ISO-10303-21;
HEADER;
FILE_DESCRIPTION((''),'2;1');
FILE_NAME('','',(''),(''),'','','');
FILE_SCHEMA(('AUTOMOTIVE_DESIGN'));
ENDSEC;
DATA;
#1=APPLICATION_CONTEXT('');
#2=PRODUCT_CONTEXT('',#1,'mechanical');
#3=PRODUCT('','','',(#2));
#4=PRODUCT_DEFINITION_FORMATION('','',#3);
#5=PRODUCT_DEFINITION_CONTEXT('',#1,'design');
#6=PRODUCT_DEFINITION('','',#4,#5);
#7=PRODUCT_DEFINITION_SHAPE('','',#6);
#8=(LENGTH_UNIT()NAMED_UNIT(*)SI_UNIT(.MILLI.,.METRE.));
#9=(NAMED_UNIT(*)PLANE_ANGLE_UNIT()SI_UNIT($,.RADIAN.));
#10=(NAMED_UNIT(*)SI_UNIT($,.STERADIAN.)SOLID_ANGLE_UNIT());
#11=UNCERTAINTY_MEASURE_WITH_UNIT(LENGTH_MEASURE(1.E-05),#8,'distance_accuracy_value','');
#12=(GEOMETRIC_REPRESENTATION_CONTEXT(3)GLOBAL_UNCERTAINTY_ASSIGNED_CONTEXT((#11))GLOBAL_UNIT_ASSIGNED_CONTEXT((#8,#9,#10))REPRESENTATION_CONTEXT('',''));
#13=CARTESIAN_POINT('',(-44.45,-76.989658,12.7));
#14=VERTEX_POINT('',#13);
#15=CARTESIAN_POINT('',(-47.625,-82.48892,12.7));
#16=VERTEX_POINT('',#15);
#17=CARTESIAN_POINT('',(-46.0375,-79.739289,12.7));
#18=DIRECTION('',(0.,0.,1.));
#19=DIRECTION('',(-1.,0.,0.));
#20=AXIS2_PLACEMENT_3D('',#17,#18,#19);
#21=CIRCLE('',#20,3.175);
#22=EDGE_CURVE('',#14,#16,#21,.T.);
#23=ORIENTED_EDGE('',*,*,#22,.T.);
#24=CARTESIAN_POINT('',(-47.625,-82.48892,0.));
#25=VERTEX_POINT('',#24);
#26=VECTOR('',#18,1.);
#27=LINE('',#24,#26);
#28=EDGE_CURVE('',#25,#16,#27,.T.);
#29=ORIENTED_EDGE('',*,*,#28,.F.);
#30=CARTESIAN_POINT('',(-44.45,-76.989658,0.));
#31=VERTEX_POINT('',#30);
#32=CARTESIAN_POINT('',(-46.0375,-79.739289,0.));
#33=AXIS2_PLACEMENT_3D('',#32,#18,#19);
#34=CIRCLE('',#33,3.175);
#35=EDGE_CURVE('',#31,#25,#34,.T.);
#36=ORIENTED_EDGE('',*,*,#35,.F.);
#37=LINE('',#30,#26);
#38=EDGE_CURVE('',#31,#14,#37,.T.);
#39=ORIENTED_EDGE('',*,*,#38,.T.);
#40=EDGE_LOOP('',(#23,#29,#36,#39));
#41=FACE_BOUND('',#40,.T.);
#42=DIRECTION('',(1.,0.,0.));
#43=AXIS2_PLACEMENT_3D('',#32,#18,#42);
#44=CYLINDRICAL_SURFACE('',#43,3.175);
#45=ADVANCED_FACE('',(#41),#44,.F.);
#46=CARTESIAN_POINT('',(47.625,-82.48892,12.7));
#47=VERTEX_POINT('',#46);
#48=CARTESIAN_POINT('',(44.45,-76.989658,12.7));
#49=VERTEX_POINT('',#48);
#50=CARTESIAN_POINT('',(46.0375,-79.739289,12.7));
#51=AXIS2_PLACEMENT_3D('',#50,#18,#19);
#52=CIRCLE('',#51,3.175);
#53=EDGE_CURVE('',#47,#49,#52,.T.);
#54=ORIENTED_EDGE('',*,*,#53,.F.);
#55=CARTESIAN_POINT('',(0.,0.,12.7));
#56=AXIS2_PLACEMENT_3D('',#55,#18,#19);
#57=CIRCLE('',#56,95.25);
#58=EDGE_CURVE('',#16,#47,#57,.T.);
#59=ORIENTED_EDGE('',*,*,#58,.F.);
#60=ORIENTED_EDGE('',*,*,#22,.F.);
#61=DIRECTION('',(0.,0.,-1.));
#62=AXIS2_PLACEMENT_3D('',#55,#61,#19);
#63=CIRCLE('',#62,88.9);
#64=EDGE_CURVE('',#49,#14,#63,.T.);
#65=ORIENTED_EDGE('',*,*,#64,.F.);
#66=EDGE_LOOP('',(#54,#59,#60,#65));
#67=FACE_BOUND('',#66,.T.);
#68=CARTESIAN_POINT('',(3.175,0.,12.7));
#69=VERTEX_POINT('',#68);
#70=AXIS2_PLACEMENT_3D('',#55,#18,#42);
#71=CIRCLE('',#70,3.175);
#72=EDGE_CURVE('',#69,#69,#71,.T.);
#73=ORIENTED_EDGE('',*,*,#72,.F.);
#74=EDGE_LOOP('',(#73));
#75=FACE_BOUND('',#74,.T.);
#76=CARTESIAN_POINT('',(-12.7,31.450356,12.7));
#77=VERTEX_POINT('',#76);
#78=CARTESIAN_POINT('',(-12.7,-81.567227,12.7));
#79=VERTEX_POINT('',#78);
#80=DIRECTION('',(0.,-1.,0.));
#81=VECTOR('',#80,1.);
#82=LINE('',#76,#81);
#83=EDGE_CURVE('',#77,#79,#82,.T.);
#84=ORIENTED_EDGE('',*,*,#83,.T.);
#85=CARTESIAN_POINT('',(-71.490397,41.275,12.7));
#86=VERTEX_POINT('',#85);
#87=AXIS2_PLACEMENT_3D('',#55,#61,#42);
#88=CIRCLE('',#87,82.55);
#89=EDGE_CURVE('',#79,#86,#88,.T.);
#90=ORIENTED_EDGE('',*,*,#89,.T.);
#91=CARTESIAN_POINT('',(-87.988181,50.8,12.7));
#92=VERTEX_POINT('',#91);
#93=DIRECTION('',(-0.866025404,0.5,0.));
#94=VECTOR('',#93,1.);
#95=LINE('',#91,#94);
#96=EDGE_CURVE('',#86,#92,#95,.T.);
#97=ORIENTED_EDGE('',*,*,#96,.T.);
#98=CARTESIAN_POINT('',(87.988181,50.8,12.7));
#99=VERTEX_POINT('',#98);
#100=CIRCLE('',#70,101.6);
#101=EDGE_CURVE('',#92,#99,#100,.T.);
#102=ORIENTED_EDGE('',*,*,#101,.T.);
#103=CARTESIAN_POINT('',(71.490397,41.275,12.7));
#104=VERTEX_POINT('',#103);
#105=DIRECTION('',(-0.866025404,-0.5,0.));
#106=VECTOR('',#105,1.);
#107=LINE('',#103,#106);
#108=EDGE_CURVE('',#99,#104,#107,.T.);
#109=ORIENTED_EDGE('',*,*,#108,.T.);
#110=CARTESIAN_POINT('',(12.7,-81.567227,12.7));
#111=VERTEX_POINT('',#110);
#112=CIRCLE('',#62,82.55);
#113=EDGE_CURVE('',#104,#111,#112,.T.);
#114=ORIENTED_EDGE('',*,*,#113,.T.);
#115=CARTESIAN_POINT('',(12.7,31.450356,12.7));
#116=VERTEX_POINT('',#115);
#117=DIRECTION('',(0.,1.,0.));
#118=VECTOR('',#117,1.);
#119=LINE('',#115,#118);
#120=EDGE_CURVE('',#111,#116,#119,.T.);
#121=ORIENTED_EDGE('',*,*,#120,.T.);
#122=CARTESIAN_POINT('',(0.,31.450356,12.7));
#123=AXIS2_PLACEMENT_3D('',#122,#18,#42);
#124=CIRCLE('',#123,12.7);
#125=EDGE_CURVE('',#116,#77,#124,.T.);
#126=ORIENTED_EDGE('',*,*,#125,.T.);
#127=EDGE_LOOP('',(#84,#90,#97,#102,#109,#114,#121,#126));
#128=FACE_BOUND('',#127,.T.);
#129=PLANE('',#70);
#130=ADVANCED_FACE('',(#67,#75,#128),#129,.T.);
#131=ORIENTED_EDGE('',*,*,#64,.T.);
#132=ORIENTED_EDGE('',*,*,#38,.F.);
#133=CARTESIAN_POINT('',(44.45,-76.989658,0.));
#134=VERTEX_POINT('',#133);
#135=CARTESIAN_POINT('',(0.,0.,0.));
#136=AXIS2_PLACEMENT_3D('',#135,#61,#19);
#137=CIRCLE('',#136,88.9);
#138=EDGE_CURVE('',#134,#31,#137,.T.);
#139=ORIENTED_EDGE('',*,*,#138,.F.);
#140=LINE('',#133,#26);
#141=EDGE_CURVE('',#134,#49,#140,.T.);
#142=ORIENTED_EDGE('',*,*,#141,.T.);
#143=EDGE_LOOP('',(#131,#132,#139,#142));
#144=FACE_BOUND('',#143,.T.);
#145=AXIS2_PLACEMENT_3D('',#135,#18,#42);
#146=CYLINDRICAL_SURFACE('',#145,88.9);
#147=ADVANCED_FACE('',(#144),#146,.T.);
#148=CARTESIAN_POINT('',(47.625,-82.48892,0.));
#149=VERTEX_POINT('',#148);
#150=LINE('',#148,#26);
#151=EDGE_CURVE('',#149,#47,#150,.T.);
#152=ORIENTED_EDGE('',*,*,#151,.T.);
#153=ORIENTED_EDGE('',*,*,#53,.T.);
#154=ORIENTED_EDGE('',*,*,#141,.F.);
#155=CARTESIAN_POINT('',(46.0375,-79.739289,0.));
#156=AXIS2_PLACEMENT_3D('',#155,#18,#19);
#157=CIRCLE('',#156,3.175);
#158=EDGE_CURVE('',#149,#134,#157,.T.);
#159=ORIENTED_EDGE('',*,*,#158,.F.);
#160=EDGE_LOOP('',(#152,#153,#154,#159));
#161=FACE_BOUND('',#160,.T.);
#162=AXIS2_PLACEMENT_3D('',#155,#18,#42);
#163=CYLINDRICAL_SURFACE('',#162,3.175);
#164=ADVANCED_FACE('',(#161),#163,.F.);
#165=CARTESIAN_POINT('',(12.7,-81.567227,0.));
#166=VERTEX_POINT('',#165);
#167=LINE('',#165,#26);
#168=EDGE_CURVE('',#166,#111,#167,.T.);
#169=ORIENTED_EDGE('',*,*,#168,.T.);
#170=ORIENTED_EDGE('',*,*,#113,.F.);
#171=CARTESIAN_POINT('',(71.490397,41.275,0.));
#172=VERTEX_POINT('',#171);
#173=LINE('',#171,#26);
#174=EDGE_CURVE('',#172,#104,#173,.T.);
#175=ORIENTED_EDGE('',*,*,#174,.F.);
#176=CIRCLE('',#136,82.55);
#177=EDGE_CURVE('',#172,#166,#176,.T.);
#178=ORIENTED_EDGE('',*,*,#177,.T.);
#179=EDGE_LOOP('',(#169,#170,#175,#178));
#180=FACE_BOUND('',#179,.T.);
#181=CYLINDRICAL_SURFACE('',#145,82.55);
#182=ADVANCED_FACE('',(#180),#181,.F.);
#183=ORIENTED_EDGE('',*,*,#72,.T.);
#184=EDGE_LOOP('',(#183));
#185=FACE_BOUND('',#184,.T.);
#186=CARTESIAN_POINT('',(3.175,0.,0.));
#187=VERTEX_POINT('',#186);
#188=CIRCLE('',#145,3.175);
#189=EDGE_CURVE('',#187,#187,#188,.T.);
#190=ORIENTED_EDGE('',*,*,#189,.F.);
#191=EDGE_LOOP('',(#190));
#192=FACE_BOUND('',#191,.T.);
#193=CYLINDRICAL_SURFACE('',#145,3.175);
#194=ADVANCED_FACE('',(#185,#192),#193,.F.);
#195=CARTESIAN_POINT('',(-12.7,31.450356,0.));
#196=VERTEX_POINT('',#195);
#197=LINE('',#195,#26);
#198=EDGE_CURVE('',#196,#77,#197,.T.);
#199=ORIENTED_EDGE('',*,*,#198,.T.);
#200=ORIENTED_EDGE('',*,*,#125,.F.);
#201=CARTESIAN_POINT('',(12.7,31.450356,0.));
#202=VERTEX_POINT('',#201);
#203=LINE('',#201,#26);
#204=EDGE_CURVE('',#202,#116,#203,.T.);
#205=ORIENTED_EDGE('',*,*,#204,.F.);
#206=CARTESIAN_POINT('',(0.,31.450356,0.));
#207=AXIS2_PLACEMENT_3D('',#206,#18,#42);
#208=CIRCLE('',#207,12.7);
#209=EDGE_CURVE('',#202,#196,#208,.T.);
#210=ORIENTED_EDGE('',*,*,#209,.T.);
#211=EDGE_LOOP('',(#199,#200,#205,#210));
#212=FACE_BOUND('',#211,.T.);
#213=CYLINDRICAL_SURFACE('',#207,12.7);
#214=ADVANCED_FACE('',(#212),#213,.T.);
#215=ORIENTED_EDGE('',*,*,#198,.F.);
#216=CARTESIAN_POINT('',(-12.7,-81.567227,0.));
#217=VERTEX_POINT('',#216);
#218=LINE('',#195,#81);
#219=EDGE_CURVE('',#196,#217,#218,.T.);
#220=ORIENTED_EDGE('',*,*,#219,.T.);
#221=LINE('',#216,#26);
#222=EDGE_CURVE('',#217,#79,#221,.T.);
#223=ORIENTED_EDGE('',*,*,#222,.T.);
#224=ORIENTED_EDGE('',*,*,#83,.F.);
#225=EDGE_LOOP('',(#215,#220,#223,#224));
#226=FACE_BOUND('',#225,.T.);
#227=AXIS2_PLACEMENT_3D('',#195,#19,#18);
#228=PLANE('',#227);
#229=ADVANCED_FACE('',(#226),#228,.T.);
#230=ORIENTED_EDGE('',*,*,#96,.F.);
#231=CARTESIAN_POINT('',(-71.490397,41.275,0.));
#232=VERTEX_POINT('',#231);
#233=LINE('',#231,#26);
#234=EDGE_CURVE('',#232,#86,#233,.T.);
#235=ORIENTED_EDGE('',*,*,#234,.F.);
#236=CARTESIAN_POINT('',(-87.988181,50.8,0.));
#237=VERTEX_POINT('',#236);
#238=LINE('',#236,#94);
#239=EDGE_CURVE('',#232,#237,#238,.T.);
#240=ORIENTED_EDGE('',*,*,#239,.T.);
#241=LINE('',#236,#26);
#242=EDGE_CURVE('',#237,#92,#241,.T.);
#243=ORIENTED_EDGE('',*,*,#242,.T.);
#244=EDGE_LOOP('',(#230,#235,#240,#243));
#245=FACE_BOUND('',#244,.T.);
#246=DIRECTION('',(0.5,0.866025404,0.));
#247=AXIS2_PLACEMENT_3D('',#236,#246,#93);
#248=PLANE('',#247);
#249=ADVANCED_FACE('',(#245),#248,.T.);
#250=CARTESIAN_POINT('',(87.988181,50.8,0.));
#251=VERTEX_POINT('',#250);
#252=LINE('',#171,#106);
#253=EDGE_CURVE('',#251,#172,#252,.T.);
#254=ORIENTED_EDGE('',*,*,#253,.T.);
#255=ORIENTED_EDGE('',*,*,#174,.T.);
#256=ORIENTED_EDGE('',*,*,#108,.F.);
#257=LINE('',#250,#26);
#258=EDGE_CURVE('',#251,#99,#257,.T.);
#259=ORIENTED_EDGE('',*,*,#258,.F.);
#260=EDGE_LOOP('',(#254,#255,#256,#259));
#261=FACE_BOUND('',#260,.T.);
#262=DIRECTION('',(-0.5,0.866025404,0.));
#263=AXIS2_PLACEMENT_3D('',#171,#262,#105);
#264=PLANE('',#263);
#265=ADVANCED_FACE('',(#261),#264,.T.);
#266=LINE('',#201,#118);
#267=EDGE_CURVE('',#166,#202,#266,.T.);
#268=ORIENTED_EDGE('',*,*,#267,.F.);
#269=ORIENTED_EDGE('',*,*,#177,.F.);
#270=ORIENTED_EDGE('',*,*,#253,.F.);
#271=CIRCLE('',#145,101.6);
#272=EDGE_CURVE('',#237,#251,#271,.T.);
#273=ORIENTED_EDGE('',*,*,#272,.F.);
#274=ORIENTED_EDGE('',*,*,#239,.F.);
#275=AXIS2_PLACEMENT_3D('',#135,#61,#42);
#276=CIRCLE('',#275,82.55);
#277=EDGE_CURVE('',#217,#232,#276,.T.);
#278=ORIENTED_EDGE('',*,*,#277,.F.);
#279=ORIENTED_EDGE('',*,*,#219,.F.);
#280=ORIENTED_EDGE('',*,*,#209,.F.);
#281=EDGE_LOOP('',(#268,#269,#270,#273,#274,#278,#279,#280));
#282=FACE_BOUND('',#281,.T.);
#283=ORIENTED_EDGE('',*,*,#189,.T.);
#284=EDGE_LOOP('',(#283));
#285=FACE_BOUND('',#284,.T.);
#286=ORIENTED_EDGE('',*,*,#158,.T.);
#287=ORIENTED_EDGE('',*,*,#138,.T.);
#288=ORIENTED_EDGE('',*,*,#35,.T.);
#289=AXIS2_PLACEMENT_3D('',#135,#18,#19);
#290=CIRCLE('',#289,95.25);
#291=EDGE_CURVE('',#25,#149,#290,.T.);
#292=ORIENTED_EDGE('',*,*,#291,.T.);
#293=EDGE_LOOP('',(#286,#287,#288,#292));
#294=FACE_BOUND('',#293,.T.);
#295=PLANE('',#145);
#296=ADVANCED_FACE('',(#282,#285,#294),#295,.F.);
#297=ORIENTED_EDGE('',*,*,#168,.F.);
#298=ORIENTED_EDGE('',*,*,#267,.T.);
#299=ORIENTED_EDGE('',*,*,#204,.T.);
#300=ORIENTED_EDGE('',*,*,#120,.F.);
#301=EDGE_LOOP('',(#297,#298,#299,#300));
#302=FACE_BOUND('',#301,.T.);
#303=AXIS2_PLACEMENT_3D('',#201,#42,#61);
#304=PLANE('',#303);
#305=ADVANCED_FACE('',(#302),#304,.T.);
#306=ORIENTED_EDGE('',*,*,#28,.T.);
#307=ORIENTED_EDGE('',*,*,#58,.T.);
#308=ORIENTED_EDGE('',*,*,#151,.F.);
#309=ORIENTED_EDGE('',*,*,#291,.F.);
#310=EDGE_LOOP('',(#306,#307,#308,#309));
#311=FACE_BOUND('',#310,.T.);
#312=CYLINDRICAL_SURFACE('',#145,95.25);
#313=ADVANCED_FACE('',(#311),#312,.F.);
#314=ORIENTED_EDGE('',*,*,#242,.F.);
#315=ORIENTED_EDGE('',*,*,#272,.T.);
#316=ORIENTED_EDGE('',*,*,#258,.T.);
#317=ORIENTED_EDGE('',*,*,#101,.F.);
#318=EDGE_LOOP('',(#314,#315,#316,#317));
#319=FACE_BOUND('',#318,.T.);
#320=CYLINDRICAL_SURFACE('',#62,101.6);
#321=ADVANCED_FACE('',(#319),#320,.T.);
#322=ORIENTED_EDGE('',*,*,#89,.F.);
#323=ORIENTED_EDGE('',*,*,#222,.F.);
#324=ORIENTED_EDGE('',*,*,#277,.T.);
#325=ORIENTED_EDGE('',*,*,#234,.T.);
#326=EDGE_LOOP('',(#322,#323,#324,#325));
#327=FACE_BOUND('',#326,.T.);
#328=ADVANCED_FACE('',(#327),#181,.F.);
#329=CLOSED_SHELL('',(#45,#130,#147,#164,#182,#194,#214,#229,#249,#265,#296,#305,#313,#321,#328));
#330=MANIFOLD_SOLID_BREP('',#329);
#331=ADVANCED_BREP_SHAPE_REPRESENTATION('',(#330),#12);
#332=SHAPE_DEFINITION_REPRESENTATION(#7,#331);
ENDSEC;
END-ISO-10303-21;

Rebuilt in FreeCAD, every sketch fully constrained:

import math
import FreeCAD as App
import Part
import Sketcher
Q = App.Units.Quantity

doc = App.newDocument("Part")
body = doc.addObject("PartDesign::Body", "Body")

sketch1 = doc.addObject("Sketcher::SketchObject", "Sketch")
body.addObject(sketch1)
sketch1.AttachmentSupport = (doc.XY_Plane, [""])
sketch1.MapMode = "FlatFace"
sketch1.addGeometry(Part.Circle(App.Vector(0, 0, 0), App.Vector(0, 0, 1), 101.6), False)
sketch1.addConstraint(Sketcher.Constraint("Coincident", 0, 3, -1, 1))
sketch1.addConstraint(Sketcher.Constraint("Diameter", 0, Q("8 in")))
pad1 = doc.addObject("PartDesign::Pad", "Pad")
body.addObject(pad1)
pad1.Profile = sketch1
pad1.Length = Q("0.5 in")

sketch2 = doc.addObject("Sketcher::SketchObject", "Sketch001")
body.addObject(sketch2)
sketch2.AttachmentSupport = (doc.XY_Plane, [""])
sketch2.MapMode = "FlatFace"
sketch2.AttachmentOffset = App.Placement(App.Vector(0, 0, 0.5 * 25.4), App.Rotation())
sketch2.addGeometry(Part.Circle(App.Vector(0, 0, 0), App.Vector(0, 0, 1), 3.175), False)
sketch2.addGeometry(Part.ArcOfCircle(Part.Circle(App.Vector(0, 0, 0), App.Vector(0, 0, 1), 95.25), math.radians(-120), math.radians(-60)), False)
sketch2.addGeometry(Part.ArcOfCircle(Part.Circle(App.Vector(46.0375, -79.739289, 0), App.Vector(0, 0, 1), 3.175), math.radians(-60), math.radians(120)), False)
sketch2.addGeometry(Part.ArcOfCircle(Part.Circle(App.Vector(0, 0, 0), App.Vector(0, 0, 1), 88.9), math.radians(-120), math.radians(-60)), False)
sketch2.addGeometry(Part.ArcOfCircle(Part.Circle(App.Vector(-46.0375, -79.739289, 0), App.Vector(0, 0, 1), 3.175), math.radians(60), math.radians(240)), False)
sketch2.addConstraint(Sketcher.Constraint("Tangent", 1, 2, 2, 1))
sketch2.addConstraint(Sketcher.Constraint("Tangent", 2, 2, 3, 2))
sketch2.addConstraint(Sketcher.Constraint("Tangent", 3, 1, 4, 1))
sketch2.addConstraint(Sketcher.Constraint("Tangent", 4, 2, 1, 1))
sketch2.addConstraint(Sketcher.Constraint("Coincident", 0, 3, -1, 1))
sketch2.addConstraint(Sketcher.Constraint("Coincident", 1, 3, -1, 1))
sketch2.addConstraint(Sketcher.Constraint("Coincident", 3, 3, -1, 1))
sketch2.addConstraint(Sketcher.Constraint("Equal", 0, 2))
sketch2.addConstraint(Sketcher.Constraint("Horizontal", 2, 3, 4, 3))
sketch2.addConstraint(Sketcher.Constraint("Radius", 3, Q("3.5 in")))
sketch2.addConstraint(Sketcher.Constraint("Diameter", 0, Q("0.25 in")))
sketch2.addConstraint(Sketcher.Constraint("DistanceX", 3, 1, 2, 2, Q("3.5 in")))
pocket1 = doc.addObject("PartDesign::Pocket", "Pocket")
body.addObject(pocket1)
pocket1.Profile = sketch2
pocket1.Type = "ThroughAll"

sketch3 = doc.addObject("Sketcher::SketchObject", "Sketch002")
body.addObject(sketch3)
sketch3.AttachmentSupport = (doc.XY_Plane, [""])
sketch3.MapMode = "FlatFace"
sketch3.AttachmentOffset = App.Placement(App.Vector(0, 0, 0.5 * 25.4), App.Rotation())
sketch3.addGeometry(Part.LineSegment(App.Vector(-131.365, 131.365, 0), App.Vector(-131.365, -131.365, 0)), False)
sketch3.addGeometry(Part.LineSegment(App.Vector(-131.365, -131.365, 0), App.Vector(131.365, -131.365, 0)), False)
sketch3.addGeometry(Part.LineSegment(App.Vector(131.365, -131.365, 0), App.Vector(131.365, 131.365, 0)), False)
sketch3.addGeometry(Part.LineSegment(App.Vector(131.365, 131.365, 0), App.Vector(-131.365, 131.365, 0)), False)
sketch3.addGeometry(Part.ArcOfCircle(Part.Circle(App.Vector(0, 0, 0), App.Vector(0, 0, 1), 101.6), math.radians(150), math.radians(390)), False)
sketch3.addGeometry(Part.LineSegment(App.Vector(-87.988181, 50.8, 0), App.Vector(-71.490397, 41.275, 0)), False)
sketch3.addGeometry(Part.ArcOfCircle(Part.Circle(App.Vector(0, 0, 0), App.Vector(0, 0, 1), 82.55), math.radians(150), math.radians(261.150117)), False)
sketch3.addGeometry(Part.LineSegment(App.Vector(-12.7, -81.567227, 0), App.Vector(-12.7, 31.450356, 0)), False)
sketch3.addGeometry(Part.ArcOfCircle(Part.Circle(App.Vector(0, 31.450356, 0), App.Vector(0, 0, 1), 12.7), math.radians(0), math.radians(180)), False)
sketch3.addGeometry(Part.LineSegment(App.Vector(12.7, 31.450356, 0), App.Vector(12.7, -81.567227, 0)), False)
sketch3.addGeometry(Part.ArcOfCircle(Part.Circle(App.Vector(0, 0, 0), App.Vector(0, 0, 1), 82.55), math.radians(-81.150117), math.radians(30)), False)
sketch3.addGeometry(Part.LineSegment(App.Vector(71.490397, 41.275, 0), App.Vector(87.988181, 50.8, 0)), False)
sketch3.addConstraint(Sketcher.Constraint("Coincident", 0, 2, 1, 1))
sketch3.addConstraint(Sketcher.Constraint("Coincident", 1, 2, 2, 1))
sketch3.addConstraint(Sketcher.Constraint("Coincident", 2, 2, 3, 1))
sketch3.addConstraint(Sketcher.Constraint("Coincident", 3, 2, 0, 1))
sketch3.addConstraint(Sketcher.Constraint("Coincident", 4, 1, 5, 1))
sketch3.addConstraint(Sketcher.Constraint("Coincident", 5, 2, 6, 1))
sketch3.addConstraint(Sketcher.Constraint("Coincident", 6, 2, 7, 1))
sketch3.addConstraint(Sketcher.Constraint("Tangent", 7, 2, 8, 2))
sketch3.addConstraint(Sketcher.Constraint("Tangent", 8, 1, 9, 1))
sketch3.addConstraint(Sketcher.Constraint("Coincident", 9, 2, 10, 1))
sketch3.addConstraint(Sketcher.Constraint("Coincident", 10, 2, 11, 1))
sketch3.addConstraint(Sketcher.Constraint("Coincident", 11, 2, 4, 2))
sketch3.addConstraint(Sketcher.Constraint("Vertical", 0))
sketch3.addConstraint(Sketcher.Constraint("Horizontal", 1))
sketch3.addConstraint(Sketcher.Constraint("Vertical", 2))
sketch3.addConstraint(Sketcher.Constraint("Horizontal", 3))
sketch3.addConstraint(Sketcher.Constraint("Vertical", 7))
sketch3.addConstraint(Sketcher.Constraint("Vertical", 9))
sketch3.addConstraint(Sketcher.Constraint("Coincident", 4, 3, -1, 1))
sketch3.addConstraint(Sketcher.Constraint("Coincident", 6, 3, -1, 1))
sketch3.addConstraint(Sketcher.Constraint("Coincident", 10, 3, -1, 1))
sketch3.addConstraint(Sketcher.Constraint("Equal", 6, 10))
sketch3.addConstraint(Sketcher.Constraint("Symmetric", 0, 2, 2, 2, -1, 1))
sketch3.addConstraint(Sketcher.Constraint("PointOnObject", 8, 3, -2))
sketch3.addConstraint(Sketcher.Constraint("Horizontal", 5, 2, 10, 2))
sketch3.addConstraint(Sketcher.Constraint("Horizontal", 4, 1, 11, 2))
sketch3.addConstraint(Sketcher.Constraint("Equal", 3, 0))
sketch3.addConstraint(Sketcher.Constraint("Radius", 4, Q("4 in")))
sketch3.addConstraint(Sketcher.Constraint("Radius", 8, Q("0.5 in")))
sketch3.addConstraint(Sketcher.Constraint("Radius", 6, Q("3.25 in")))
sketch3.addConstraint(Sketcher.Constraint("DistanceY", -1, 1, 4, 1, Q("2 in")))
sketch3.addConstraint(Sketcher.Constraint("Angle", 5, Q("-30 deg")))
sketch3.addConstraint(Sketcher.Constraint("DistanceX", 1, 1, 1, 2, Q("262.73 mm")))
sketch3.addConstraint(Sketcher.Constraint("DistanceY", 7, 1, 7, 2, Q("113.017583 mm")))
pocket2 = doc.addObject("PartDesign::Pocket", "Pocket001")
body.addObject(pocket2)
pocket2.Profile = sketch3
pocket2.Type = "ThroughAll"

doc.recompute()
